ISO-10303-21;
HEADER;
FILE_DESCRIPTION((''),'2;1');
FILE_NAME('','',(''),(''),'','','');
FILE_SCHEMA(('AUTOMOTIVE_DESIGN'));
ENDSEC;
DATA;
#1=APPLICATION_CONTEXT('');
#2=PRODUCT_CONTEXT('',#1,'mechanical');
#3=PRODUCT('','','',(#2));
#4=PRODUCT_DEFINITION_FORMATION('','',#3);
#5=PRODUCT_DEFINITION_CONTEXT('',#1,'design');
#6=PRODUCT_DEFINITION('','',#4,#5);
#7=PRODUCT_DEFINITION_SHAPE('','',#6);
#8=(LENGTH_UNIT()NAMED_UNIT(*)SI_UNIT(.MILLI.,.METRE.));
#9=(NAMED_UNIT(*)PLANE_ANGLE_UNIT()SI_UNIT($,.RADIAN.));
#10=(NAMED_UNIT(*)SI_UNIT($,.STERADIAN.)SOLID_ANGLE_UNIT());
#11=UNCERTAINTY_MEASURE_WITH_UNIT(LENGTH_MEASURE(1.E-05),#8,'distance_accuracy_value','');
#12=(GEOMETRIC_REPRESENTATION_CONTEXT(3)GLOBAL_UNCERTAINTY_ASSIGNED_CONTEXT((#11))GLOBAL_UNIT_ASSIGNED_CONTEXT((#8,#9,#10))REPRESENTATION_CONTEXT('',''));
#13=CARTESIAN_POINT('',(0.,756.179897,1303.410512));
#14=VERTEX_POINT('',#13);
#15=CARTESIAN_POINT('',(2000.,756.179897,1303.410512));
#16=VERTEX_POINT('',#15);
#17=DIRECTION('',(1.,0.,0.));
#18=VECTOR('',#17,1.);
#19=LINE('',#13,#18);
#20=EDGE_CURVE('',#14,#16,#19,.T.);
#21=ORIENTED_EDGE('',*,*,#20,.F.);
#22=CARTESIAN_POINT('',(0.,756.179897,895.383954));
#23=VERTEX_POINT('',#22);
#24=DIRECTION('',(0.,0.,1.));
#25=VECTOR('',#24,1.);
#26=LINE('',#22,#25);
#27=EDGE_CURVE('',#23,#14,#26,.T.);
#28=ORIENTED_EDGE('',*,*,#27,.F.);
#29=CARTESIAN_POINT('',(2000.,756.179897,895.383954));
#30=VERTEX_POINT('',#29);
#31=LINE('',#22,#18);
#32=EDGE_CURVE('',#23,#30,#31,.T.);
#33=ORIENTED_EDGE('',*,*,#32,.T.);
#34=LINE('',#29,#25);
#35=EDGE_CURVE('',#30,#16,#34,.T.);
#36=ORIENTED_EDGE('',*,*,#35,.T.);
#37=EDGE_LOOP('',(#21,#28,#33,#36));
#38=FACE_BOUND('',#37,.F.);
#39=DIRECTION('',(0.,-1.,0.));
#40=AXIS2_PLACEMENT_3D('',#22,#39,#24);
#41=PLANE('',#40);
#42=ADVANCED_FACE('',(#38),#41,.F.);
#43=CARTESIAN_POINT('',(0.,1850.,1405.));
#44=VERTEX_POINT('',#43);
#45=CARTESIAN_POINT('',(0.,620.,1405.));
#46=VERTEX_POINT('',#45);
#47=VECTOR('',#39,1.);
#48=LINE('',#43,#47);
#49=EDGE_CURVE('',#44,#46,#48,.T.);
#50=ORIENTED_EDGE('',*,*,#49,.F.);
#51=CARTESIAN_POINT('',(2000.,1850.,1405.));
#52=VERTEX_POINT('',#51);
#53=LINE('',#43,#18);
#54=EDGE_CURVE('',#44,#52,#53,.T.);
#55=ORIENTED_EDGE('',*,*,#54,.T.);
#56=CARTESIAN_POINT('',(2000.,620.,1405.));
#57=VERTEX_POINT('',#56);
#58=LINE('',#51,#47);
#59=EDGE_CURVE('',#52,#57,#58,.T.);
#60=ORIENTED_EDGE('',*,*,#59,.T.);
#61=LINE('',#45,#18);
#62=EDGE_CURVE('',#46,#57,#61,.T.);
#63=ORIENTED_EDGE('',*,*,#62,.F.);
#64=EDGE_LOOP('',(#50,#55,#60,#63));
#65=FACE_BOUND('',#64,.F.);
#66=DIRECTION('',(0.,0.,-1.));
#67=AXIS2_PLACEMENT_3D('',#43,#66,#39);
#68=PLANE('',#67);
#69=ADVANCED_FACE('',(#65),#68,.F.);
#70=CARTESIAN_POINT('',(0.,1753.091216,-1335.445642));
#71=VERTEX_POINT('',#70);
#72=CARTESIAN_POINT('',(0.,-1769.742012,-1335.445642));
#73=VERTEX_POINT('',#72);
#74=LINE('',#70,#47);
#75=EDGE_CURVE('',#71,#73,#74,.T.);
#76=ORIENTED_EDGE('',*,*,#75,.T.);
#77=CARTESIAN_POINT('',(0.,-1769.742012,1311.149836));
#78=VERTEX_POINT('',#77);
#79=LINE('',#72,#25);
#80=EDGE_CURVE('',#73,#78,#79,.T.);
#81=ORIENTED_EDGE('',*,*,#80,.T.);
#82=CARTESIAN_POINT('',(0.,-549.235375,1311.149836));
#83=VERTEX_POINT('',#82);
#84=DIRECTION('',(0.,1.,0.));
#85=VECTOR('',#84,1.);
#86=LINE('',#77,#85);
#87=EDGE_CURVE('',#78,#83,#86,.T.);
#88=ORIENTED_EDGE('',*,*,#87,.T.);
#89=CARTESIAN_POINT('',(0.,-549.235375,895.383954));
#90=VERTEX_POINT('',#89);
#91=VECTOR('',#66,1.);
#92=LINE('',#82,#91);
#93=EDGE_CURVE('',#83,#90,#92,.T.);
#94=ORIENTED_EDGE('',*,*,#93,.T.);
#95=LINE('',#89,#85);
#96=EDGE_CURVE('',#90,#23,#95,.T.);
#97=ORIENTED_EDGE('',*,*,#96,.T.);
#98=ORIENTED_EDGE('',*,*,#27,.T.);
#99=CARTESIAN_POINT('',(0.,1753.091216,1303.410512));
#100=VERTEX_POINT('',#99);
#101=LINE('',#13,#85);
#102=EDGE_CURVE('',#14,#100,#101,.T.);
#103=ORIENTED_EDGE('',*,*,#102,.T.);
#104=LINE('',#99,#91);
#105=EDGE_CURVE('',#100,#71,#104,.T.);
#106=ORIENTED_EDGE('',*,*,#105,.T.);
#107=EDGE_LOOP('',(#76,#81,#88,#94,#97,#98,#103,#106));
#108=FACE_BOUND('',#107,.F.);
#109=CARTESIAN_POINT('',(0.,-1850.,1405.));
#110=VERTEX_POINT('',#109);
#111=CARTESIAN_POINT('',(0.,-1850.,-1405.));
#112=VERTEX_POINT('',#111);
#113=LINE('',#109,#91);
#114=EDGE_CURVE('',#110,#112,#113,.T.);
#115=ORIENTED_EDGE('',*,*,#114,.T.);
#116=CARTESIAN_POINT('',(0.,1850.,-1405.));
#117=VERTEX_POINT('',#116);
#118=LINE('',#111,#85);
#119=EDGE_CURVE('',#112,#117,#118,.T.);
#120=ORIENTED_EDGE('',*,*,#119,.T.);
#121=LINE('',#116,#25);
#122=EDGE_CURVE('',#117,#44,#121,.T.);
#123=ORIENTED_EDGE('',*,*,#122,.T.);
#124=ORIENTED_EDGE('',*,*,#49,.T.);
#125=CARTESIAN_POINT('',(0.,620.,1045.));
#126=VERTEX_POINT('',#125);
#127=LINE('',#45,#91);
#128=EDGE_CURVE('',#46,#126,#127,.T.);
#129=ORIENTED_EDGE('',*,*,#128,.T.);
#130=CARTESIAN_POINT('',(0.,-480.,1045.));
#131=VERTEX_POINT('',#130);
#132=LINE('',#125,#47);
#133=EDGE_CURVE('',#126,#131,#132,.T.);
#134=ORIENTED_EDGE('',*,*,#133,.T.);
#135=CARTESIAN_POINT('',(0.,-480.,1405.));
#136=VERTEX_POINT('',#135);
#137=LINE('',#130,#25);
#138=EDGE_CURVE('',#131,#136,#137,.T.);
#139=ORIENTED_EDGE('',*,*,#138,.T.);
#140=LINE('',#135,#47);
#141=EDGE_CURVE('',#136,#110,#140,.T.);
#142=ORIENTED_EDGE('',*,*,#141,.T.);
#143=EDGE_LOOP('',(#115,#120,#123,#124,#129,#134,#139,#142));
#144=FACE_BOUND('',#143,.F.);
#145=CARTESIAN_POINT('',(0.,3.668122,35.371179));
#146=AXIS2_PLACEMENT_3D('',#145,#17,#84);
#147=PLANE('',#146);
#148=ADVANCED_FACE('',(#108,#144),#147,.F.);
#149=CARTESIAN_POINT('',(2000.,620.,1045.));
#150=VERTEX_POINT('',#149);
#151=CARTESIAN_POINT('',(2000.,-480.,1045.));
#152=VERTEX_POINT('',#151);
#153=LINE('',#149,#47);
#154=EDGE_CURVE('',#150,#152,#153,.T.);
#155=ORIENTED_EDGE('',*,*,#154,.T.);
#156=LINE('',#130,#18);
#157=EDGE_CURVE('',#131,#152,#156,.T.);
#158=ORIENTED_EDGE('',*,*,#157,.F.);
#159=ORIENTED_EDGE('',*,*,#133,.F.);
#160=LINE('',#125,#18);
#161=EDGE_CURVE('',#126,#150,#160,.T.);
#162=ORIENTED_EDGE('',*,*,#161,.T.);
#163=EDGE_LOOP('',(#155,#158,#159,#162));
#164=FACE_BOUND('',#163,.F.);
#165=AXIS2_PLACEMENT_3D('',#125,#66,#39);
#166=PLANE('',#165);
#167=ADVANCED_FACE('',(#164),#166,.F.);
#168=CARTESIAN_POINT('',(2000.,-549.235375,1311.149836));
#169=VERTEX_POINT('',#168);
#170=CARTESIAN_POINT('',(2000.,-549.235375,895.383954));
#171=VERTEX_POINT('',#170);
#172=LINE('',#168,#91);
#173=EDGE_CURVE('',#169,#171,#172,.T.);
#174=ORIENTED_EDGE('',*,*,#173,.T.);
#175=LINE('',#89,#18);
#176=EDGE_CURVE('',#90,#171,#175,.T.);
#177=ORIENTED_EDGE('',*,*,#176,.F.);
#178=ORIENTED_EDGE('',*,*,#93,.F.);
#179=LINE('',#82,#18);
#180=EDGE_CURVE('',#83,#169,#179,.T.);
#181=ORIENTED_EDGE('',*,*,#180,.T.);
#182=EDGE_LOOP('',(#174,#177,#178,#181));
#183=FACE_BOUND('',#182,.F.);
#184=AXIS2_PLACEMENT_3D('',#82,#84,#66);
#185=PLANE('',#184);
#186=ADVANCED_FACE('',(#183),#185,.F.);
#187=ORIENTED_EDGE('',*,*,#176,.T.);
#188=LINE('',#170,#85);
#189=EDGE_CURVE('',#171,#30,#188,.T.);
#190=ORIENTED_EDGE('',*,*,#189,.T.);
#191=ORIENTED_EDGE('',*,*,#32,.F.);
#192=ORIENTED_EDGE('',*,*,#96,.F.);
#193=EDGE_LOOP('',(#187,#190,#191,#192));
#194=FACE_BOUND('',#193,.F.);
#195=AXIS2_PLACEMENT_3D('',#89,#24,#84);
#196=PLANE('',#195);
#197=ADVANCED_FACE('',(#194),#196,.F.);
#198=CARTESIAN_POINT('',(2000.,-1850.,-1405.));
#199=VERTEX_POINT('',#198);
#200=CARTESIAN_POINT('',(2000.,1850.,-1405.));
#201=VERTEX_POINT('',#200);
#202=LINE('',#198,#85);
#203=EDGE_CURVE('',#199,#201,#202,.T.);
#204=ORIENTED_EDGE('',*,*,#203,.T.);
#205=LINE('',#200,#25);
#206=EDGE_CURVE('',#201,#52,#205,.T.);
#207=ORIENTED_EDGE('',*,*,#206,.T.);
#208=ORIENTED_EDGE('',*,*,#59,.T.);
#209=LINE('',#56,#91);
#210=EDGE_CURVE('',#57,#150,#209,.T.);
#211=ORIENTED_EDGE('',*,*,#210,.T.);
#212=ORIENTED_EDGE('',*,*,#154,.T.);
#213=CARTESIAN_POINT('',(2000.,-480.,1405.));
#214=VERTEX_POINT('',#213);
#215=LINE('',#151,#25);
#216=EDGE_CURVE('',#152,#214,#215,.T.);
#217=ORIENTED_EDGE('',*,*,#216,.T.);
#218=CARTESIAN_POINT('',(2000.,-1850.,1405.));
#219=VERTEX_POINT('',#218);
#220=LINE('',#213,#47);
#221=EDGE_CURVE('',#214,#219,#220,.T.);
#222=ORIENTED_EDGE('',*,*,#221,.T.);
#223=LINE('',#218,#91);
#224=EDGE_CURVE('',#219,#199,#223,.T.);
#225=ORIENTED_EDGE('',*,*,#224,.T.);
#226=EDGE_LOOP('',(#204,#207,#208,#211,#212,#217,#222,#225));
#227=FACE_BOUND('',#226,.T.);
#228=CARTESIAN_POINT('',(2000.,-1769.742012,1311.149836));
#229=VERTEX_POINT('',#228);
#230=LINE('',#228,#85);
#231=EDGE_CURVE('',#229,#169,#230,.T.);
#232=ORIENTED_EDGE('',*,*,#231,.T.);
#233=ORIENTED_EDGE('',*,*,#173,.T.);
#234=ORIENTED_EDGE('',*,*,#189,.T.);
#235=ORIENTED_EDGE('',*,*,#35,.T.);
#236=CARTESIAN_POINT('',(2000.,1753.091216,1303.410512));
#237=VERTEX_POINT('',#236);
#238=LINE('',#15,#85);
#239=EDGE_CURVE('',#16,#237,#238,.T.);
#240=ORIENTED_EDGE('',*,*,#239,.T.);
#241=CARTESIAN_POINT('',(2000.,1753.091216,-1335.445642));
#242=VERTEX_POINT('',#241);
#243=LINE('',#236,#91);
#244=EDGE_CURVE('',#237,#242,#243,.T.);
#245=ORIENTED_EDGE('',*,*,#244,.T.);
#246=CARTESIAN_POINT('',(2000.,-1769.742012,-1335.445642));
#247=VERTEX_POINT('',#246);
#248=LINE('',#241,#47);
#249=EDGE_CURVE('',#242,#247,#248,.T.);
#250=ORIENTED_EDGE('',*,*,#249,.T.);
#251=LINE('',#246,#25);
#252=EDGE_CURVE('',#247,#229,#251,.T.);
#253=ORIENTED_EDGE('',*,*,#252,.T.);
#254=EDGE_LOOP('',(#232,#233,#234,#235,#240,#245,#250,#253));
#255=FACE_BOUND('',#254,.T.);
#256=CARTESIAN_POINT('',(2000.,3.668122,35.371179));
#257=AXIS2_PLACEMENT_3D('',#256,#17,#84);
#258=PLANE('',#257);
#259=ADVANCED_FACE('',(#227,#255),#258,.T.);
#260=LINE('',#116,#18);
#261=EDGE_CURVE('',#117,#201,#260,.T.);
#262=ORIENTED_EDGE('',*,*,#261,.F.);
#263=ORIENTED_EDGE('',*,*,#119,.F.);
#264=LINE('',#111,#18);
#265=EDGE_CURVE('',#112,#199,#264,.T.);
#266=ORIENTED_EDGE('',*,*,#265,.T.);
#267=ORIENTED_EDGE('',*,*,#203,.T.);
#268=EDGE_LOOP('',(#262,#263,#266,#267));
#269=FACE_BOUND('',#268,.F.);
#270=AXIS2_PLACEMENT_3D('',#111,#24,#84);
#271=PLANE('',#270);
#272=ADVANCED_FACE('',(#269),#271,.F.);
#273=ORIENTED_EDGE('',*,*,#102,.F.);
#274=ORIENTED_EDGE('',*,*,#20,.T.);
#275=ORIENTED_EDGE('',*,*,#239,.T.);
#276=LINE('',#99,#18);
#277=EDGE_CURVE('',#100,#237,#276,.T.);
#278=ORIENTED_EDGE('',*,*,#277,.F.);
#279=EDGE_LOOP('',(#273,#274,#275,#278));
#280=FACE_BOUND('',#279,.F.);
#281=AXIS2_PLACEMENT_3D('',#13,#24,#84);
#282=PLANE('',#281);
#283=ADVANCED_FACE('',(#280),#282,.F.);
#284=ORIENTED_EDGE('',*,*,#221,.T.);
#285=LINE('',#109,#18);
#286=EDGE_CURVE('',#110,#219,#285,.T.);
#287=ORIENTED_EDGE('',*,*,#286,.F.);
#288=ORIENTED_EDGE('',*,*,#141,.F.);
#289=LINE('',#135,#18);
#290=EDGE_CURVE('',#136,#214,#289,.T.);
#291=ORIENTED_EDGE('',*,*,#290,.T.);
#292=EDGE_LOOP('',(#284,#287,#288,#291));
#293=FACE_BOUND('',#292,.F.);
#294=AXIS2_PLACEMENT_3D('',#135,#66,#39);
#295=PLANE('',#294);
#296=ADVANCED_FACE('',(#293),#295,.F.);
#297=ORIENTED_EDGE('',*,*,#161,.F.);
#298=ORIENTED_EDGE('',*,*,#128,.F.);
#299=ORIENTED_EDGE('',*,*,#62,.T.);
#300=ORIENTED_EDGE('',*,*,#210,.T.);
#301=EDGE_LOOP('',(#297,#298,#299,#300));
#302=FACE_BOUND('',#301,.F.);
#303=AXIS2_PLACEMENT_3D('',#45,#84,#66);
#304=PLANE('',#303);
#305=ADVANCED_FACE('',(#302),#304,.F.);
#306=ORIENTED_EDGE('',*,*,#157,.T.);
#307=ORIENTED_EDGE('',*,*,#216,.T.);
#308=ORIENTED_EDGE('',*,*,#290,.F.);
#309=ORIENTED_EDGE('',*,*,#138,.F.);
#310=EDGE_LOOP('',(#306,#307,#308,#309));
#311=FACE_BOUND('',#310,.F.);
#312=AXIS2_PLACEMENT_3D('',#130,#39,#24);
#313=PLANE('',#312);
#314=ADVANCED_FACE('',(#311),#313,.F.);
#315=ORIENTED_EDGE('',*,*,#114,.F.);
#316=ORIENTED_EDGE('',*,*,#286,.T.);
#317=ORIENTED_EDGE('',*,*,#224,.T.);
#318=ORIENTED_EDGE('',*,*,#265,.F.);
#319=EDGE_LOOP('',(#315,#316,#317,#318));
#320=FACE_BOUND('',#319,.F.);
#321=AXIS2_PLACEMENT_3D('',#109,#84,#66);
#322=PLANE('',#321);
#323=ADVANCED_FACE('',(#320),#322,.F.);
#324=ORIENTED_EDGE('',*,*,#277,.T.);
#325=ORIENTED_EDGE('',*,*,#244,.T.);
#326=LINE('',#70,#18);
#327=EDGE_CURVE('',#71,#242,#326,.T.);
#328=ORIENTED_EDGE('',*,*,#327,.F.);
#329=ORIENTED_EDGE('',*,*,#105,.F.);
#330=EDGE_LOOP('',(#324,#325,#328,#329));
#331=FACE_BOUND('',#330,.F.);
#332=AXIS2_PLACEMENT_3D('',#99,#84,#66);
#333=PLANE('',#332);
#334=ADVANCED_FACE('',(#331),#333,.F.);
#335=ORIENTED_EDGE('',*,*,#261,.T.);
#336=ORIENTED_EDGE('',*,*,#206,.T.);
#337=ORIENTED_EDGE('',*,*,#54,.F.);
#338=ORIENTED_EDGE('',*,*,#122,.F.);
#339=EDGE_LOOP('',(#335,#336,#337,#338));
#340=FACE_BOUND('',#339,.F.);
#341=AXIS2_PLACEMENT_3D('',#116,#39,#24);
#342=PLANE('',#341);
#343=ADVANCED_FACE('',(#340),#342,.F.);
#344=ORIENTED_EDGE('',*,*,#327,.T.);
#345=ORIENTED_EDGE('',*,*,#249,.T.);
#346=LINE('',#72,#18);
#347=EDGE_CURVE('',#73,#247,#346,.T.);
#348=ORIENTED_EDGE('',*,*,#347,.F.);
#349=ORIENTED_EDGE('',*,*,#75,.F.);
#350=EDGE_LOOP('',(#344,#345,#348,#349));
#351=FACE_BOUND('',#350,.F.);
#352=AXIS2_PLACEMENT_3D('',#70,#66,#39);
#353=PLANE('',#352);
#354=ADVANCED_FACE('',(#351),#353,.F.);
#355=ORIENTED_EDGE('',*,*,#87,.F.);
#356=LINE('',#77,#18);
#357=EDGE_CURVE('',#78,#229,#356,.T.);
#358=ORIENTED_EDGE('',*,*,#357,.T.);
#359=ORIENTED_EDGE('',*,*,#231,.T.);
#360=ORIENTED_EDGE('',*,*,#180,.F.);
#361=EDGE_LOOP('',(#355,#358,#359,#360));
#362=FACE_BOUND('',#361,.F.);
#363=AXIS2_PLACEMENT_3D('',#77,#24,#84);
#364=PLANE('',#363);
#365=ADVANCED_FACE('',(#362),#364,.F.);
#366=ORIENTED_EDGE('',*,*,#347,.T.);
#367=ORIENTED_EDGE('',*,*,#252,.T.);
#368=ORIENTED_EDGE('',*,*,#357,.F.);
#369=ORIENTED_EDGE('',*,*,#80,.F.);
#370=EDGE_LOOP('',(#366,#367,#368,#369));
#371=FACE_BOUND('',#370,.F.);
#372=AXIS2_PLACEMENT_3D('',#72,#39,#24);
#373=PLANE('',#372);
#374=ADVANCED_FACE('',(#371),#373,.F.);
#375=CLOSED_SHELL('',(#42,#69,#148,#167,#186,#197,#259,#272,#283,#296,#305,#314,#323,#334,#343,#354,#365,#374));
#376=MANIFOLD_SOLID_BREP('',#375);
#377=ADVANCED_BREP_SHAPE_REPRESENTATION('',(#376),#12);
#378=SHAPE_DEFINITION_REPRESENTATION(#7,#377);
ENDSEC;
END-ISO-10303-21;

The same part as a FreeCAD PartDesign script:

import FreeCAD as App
import Part
import Sketcher
from FreeCAD import Vector

doc = App.newDocument("Part")
body = doc.addObject("PartDesign::Body", "Body")

# Sketch on YZ plane
sketch1 = doc.addObject("Sketcher::SketchObject", "Sketch")
body.addObject(sketch1)
sketch1.AttachmentSupport = (doc.YZ_Plane, [""])
sketch1.MapMode = "FlatFace"
sketch1.addGeometry(Part.LineSegment(Vector(-480, 1405, 0), Vector(-1850, 1405, 0)), False)
sketch1.addGeometry(Part.LineSegment(Vector(-1850, 1405, 0), Vector(-1850, -1405, 0)), False)
sketch1.addGeometry(Part.LineSegment(Vector(-1850, -1405, 0), Vector(1850, -1405, 0)), False)
sketch1.addGeometry(Part.LineSegment(Vector(1850, -1405, 0), Vector(1850, 1405, 0)), False)
sketch1.addGeometry(Part.LineSegment(Vector(1850, 1405, 0), Vector(620, 1405, 0)), False)
sketch1.addGeometry(Part.LineSegment(Vector(620, 1405, 0), Vector(620, 1045, 0)), False)
sketch1.addGeometry(Part.LineSegment(Vector(620, 1045, 0), Vector(-480, 1045, 0)), False)
sketch1.addGeometry(Part.LineSegment(Vector(-480, 1045, 0), Vector(-480, 1405, 0)), False)
sketch1.addGeometry(Part.LineSegment(Vector(1753, -1335, 0), Vector(-1770, -1335, 0)), False)
sketch1.addGeometry(Part.LineSegment(Vector(-1770, -1335, 0), Vector(-1770, 1311, 0)), False)
sketch1.addGeometry(Part.LineSegment(Vector(-1770, 1311, 0), Vector(-549, 1311, 0)), False)
sketch1.addGeometry(Part.LineSegment(Vector(-549, 1311, 0), Vector(-549, 895, 0)), False)
sketch1.addGeometry(Part.LineSegment(Vector(-549, 895, 0), Vector(756, 895, 0)), False)
sketch1.addGeometry(Part.LineSegment(Vector(756, 895, 0), Vector(756, 1303, 0)), False)
sketch1.addGeometry(Part.LineSegment(Vector(756, 1303, 0), Vector(1753, 1303, 0)), False)
sketch1.addGeometry(Part.LineSegment(Vector(1753, 1303, 0), Vector(1753, -1335, 0)), False)
sketch1.addConstraint(Sketcher.Constraint("Coincident", 0, 2, 1, 1))
sketch1.addConstraint(Sketcher.Constraint("Coincident", 1, 2, 2, 1))
sketch1.addConstraint(Sketcher.Constraint("Coincident", 2, 2, 3, 1))
sketch1.addConstraint(Sketcher.Constraint("Coincident", 3, 2, 4, 1))
sketch1.addConstraint(Sketcher.Constraint("Coincident", 4, 2, 5, 1))
sketch1.addConstraint(Sketcher.Constraint("Coincident", 5, 2, 6, 1))
sketch1.addConstraint(Sketcher.Constraint("Coincident", 6, 2, 7, 1))
sketch1.addConstraint(Sketcher.Constraint("Coincident", 7, 2, 0, 1))
sketch1.addConstraint(Sketcher.Constraint("Coincident", 8, 2, 9, 1))
sketch1.addConstraint(Sketcher.Constraint("Coincident", 9, 2, 10, 1))
sketch1.addConstraint(Sketcher.Constraint("Coincident", 10, 2, 11, 1))
sketch1.addConstraint(Sketcher.Constraint("Coincident", 11, 2, 12, 1))
sketch1.addConstraint(Sketcher.Constraint("Coincident", 12, 2, 13, 1))
sketch1.addConstraint(Sketcher.Constraint("Coincident", 13, 2, 14, 1))
sketch1.addConstraint(Sketcher.Constraint("Coincident", 14, 2, 15, 1))
sketch1.addConstraint(Sketcher.Constraint("Coincident", 15, 2, 8, 1))
sketch1.addConstraint(Sketcher.Constraint("Horizontal", 0))
sketch1.addConstraint(Sketcher.Constraint("Vertical", 1))
sketch1.addConstraint(Sketcher.Constraint("Horizontal", 2))
sketch1.addConstraint(Sketcher.Constraint("Vertical", 3))
sketch1.addConstraint(Sketcher.Constraint("Horizontal", 4))
sketch1.addConstraint(Sketcher.Constraint("Vertical", 5))
sketch1.addConstraint(Sketcher.Constraint("Horizontal", 6))
sketch1.addConstraint(Sketcher.Constraint("Vertical", 7))
sketch1.addConstraint(Sketcher.Constraint("Horizontal", 8))
sketch1.addConstraint(Sketcher.Constraint("Vertical", 9))
sketch1.addConstraint(Sketcher.Constraint("Horizontal", 10))
sketch1.addConstraint(Sketcher.Constraint("Vertical", 11))
sketch1.addConstraint(Sketcher.Constraint("Horizontal", 12))
sketch1.addConstraint(Sketcher.Constraint("Vertical", 13))
sketch1.addConstraint(Sketcher.Constraint("Horizontal", 14))
sketch1.addConstraint(Sketcher.Constraint("Vertical", 15))
sketch1.addConstraint(Sketcher.Constraint("Symmetric", 0, 2, 2, 2, -1, 1))
sketch1.addConstraint(Sketcher.Constraint("Horizontal", 0, 2, 3, 2))
sketch1.addConstraint(Sketcher.Constraint("DistanceX", 0, 2, 0, 1, 1370.0))
sketch1.addConstraint(Sketcher.Constraint("DistanceX", 2, 1, 2, 2, 3700.0))
sketch1.addConstraint(Sketcher.Constraint("DistanceX", 4, 2, 4, 1, 1230.0))
sketch1.addConstraint(Sketcher.Constraint("DistanceY", 1, 2, 1, 1, 2810.0))
sketch1.addConstraint(Sketcher.Constraint("DistanceY", 5, 2, 5, 1, 360.0))
sketch1.addConstraint(Sketcher.Constraint("DistanceX", 12, 1, 12, 2, 1305.415272))
sketch1.addConstraint(Sketcher.Constraint("DistanceX", 14, 1, 14, 2, 996.911319))
sketch1.addConstraint(Sketcher.Constraint("DistanceY", 9, 1, 9, 2, 2646.595478))
sketch1.addConstraint(Sketcher.Constraint("DistanceX", 8, 2, 8, 1, 3522.833228))
sketch1.addConstraint(Sketcher.Constraint("DistanceY", 11, 2, 11, 1, 415.765882))
sketch1.addConstraint(Sketcher.Constraint("DistanceY", 13, 1, 13, 2, 408.026558))
sketch1.addConstraint(Sketcher.Constraint("DistanceX", 8, 2, -1, 1, 1769.742012))
sketch1.addConstraint(Sketcher.Constraint("DistanceY", 8, 2, -1, 1, 1335.445642))
pad1 = doc.addObject("PartDesign::Pad", "Pad")
body.addObject(pad1)
pad1.Profile = sketch1
pad1.Length = 2000

doc.recompute()
